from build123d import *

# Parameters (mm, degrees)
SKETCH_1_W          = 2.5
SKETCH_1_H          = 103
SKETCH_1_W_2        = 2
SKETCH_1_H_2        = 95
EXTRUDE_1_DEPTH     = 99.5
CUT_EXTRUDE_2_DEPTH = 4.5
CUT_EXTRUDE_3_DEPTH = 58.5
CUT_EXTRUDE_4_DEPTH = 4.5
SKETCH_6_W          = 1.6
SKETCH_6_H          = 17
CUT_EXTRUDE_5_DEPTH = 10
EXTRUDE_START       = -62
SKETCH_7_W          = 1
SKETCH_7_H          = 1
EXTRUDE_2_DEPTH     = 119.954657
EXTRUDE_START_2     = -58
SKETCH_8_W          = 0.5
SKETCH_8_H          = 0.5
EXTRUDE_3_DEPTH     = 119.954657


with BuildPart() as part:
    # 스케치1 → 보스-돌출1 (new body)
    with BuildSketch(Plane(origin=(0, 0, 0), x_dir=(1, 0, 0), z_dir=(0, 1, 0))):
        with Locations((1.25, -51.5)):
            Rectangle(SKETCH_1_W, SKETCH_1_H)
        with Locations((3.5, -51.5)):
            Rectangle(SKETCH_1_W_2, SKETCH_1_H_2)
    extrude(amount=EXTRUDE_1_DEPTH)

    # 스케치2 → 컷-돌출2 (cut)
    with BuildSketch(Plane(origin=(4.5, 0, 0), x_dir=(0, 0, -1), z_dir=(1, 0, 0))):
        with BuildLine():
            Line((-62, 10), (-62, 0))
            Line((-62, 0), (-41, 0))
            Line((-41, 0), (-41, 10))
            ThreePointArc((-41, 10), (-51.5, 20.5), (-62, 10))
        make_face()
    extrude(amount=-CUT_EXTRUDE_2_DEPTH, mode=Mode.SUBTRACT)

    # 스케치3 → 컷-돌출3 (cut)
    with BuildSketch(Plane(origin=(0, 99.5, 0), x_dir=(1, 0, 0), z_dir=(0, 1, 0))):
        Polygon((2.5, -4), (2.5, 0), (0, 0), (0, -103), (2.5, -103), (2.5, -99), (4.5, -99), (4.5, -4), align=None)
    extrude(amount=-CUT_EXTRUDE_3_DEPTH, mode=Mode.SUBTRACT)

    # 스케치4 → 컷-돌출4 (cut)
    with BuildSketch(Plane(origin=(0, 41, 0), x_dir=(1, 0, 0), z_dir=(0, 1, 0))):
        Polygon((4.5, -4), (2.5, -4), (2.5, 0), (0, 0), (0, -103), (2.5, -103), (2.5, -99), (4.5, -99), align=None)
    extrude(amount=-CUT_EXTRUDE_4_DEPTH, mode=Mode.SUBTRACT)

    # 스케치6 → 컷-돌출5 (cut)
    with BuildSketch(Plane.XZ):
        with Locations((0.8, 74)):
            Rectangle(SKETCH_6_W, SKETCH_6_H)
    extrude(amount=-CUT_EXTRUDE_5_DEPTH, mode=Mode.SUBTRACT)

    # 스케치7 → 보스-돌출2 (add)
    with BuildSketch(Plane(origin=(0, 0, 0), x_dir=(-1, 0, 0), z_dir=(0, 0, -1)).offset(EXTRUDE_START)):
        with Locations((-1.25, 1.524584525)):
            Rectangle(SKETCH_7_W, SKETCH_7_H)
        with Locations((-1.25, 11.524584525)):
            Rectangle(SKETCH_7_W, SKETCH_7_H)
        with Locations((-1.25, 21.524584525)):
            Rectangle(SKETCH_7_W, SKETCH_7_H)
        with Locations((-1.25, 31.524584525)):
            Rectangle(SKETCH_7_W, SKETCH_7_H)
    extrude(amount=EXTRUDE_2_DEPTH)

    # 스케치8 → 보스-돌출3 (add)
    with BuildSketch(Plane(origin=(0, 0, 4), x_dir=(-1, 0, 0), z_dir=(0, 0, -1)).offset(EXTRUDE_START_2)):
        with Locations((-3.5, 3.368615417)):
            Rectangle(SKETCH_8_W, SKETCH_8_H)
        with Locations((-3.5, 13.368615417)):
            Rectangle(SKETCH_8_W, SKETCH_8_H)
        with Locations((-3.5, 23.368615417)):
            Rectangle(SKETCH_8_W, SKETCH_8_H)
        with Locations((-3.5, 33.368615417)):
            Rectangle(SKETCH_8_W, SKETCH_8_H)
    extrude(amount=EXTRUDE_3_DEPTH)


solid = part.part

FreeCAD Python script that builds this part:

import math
import FreeCAD as App
import Part
import Sketcher

V = App.Vector

doc = App.newDocument("Part")
body = doc.addObject("PartDesign::Body", "Body")

# Sketch on XZ plane
sketch1 = body.newObject("Sketcher::SketchObject", "Sketch")
sketch1.AttachmentSupport = (doc.getObject("XZ_Plane"), [""])
sketch1.MapMode = "FlatFace"
sketch1.addGeometry(Part.LineSegment(V(0, 0, 0), V(0, 103, 0)), False)
sketch1.addGeometry(Part.LineSegment(V(0, 103, 0), V(2.5, 103, 0)), False)
sketch1.addGeometry(Part.LineSegment(V(2.5, 103, 0), V(2.5, 99, 0)), False)
sketch1.addGeometry(Part.LineSegment(V(2.5, 99, 0), V(4.5, 99, 0)), False)
sketch1.addGeometry(Part.LineSegment(V(4.5, 99, 0), V(4.5, 4, 0)), False)
sketch1.addGeometry(Part.LineSegment(V(4.5, 4, 0), V(2.5, 4, 0)), False)
sketch1.addGeometry(Part.LineSegment(V(2.5, 4, 0), V(2.5, 0, 0)), False)
sketch1.addGeometry(Part.LineSegment(V(2.5, 0, 0), V(0, 0, 0)), False)
sketch1.addConstraint(Sketcher.Constraint("Coincident", 0, 2, 1, 1))
sketch1.addConstraint(Sketcher.Constraint("Coincident", 1, 2, 2, 1))
sketch1.addConstraint(Sketcher.Constraint("Coincident", 2, 2, 3, 1))
sketch1.addConstraint(Sketcher.Constraint("Coincident", 3, 2, 4, 1))
sketch1.addConstraint(Sketcher.Constraint("Coincident", 4, 2, 5, 1))
sketch1.addConstraint(Sketcher.Constraint("Coincident", 5, 2, 6, 1))
sketch1.addConstraint(Sketcher.Constraint("Coincident", 6, 2, 7, 1))
sketch1.addConstraint(Sketcher.Constraint("Coincident", 7, 2, 0, 1))
sketch1.addConstraint(Sketcher.Constraint("Vertical", 0))
sketch1.addConstraint(Sketcher.Constraint("Horizontal", 1))
sketch1.addConstraint(Sketcher.Constraint("Vertical", 2))
sketch1.addConstraint(Sketcher.Constraint("Horizontal", 3))
sketch1.addConstraint(Sketcher.Constraint("Vertical", 4))
sketch1.addConstraint(Sketcher.Constraint("Horizontal", 5))
sketch1.addConstraint(Sketcher.Constraint("Vertical", 6))
sketch1.addConstraint(Sketcher.Constraint("Horizontal", 7))
sketch1.addConstraint(Sketcher.Constraint("Coincident", 7, 2, -1, 1))
sketch1.addConstraint(Sketcher.Constraint("Vertical", 2, 2, 5, 2))
sketch1.addConstraint(Sketcher.Constraint("Equal", 2, 6))
sketch1.addConstraint(Sketcher.Constraint("DistanceX", 3, 1, 3, 2, 2.0))
sketch1.addConstraint(Sketcher.Constraint("DistanceY", 0, 1, 0, 2, 103.0))
sketch1.addConstraint(Sketcher.Constraint("DistanceY", 2, 2, 2, 1, 4.0))
sketch1.addConstraint(Sketcher.Constraint("DistanceX", 1, 1, 1, 2, 2.5))
pad1 = body.newObject("PartDesign::Pad", "Pad")
pad1.Profile = sketch1
pad1.Length = 99.5
pad1.Reversed = True

# Sketch on YZ plane
sketch2 = body.newObject("Sketcher::SketchObject", "Sketch001")
sketch2.AttachmentSupport = (doc.getObject("YZ_Plane"), [""])
sketch2.MapMode = "FlatFace"
sketch2.AttachmentOffset = App.Placement(V(0, 0, 4.5), App.Rotation())
sketch2.addGeometry(Part.LineSegment(V(10, 62, 0), V(0, 62, 0)), False)
sketch2.addGeometry(Part.LineSegment(V(0, 62, 0), V(0, 41, 0)), False)
sketch2.addGeometry(Part.LineSegment(V(0, 41, 0), V(10, 41, 0)), False)
sketch2.addGeometry(Part.ArcOfCircle(Part.Circle(V(10, 52, 0), V(0, 0, 1), 10), math.radians(-90), math.radians(90)), False)
sketch2.addConstraint(Sketcher.Constraint("Coincident", 0, 2, 1, 1))
sketch2.addConstraint(Sketcher.Constraint("Coincident", 1, 2, 2, 1))
sketch2.addConstraint(Sketcher.Constraint("Tangent", 2, 2, 3, 1))
sketch2.addConstraint(Sketcher.Constraint("Tangent", 3, 2, 0, 1))
sketch2.addConstraint(Sketcher.Constraint("Horizontal", 0))
sketch2.addConstraint(Sketcher.Constraint("Vertical", 1))
sketch2.addConstraint(Sketcher.Constraint("Horizontal", 2))
sketch2.addConstraint(Sketcher.Constraint("PointOnObject", 0, 2, -2))
sketch2.addConstraint(Sketcher.Constraint("Radius", 3, 10.5))
sketch2.addConstraint(Sketcher.Constraint("DistanceX", 0, 2, 0, 1, 10.0))
sketch2.addConstraint(Sketcher.Constraint("DistanceY", -1, 1, 0, 2, 62.0))
pocket1 = body.newObject("PartDesign::Pocket", "Pocket")
pocket1.Profile = sketch2
pocket1.Length = 4.5

# Sketch on XZ plane
sketch3 = body.newObject("Sketcher::SketchObject", "Sketch002")
sketch3.AttachmentSupport = (doc.getObject("XZ_Plane"), [""])
sketch3.MapMode = "FlatFace"
sketch3.AttachmentOffset = App.Placement(V(0, 0, -99.5), App.Rotation())
sketch3.addGeometry(Part.LineSegment(V(2.5, 4, 0), V(2.5, 0, 0)), False)
sketch3.addGeometry(Part.LineSegment(V(2.5, 0, 0), V(0, 0, 0)), False)
sketch3.addGeometry(Part.LineSegment(V(0, 0, 0), V(0, 103, 0)), False)
sketch3.addGeometry(Part.LineSegment(V(0, 103, 0), V(2.5, 103, 0)), False)
sketch3.addGeometry(Part.LineSegment(V(2.5, 103, 0), V(2.5, 99, 0)), False)
sketch3.addGeometry(Part.LineSegment(V(2.5, 99, 0), V(4.5, 99, 0)), False)
sketch3.addGeometry(Part.LineSegment(V(4.5, 99, 0), V(4.5, 4, 0)), False)
sketch3.addGeometry(Part.LineSegment(V(4.5, 4, 0), V(2.5, 4, 0)), False)
sketch3.addConstraint(Sketcher.Constraint("Coincident", 0, 2, 1, 1))
sketch3.addConstraint(Sketcher.Constraint("Coincident", 1, 2, 2, 1))
sketch3.addConstraint(Sketcher.Constraint("Coincident", 2, 2, 3, 1))
sketch3.addConstraint(Sketcher.Constraint("Coincident", 3, 2, 4, 1))
sketch3.addConstraint(Sketcher.Constraint("Coincident", 4, 2, 5, 1))
sketch3.addConstraint(Sketcher.Constraint("Coincident", 5, 2, 6, 1))
sketch3.addConstraint(Sketcher.Constraint("Coincident", 6, 2, 7, 1))
sketch3.addConstraint(Sketcher.Constraint("Coincident", 7, 2, 0, 1))
sketch3.addConstraint(Sketcher.Constraint("Vertical", 0))
sketch3.addConstraint(Sketcher.Constraint("Horizontal", 1))
sketch3.addConstraint(Sketcher.Constraint("Vertical", 2))
sketch3.addConstraint(Sketcher.Constraint("Horizontal", 3))
sketch3.addConstraint(Sketcher.Constraint("Vertical", 4))
sketch3.addConstraint(Sketcher.Constraint("Horizontal", 5))
sketch3.addConstraint(Sketcher.Constraint("Vertical", 6))
sketch3.addConstraint(Sketcher.Constraint("Horizontal", 7))
sketch3.addConstraint(Sketcher.Constraint("Coincident", 1, 2, -1, 1))
sketch3.addConstraint(Sketcher.Constraint("Vertical", 0, 2, 3, 2))
sketch3.addConstraint(Sketcher.Constraint("Equal", 0, 4))
sketch3.addConstraint(Sketcher.Constraint("DistanceX", 5, 1, 5, 2, 2.0))
sketch3.addConstraint(Sketcher.Constraint("DistanceY", 0, 2, 0, 1, 4.0))
sketch3.addConstraint(Sketcher.Constraint("DistanceY", 2, 1, 2, 2, 103.0))
sketch3.addConstraint(Sketcher.Constraint("DistanceX", 1, 2, 1, 1, 2.5))
pocket2 = body.newObject("PartDesign::Pocket", "Pocket001")
pocket2.Profile = sketch3
pocket2.Length = 58.5
pocket2.Reversed = True

# Sketch on XZ plane
sketch4 = body.newObject("Sketcher::SketchObject", "Sketch003")
sketch4.AttachmentSupport = (doc.getObject("XZ_Plane"), [""])
sketch4.MapMode = "FlatFace"
sketch4.AttachmentOffset = App.Placement(V(0, 0, -41), App.Rotation())
sketch4.addGeometry(Part.LineSegment(V(4.5, 4, 0), V(2.5, 4, 0)), False)
sketch4.addGeometry(Part.LineSegment(V(2.5, 4, 0), V(2.5, 0, 0)), False)
sketch4.addGeometry(Part.LineSegment(V(2.5, 0, 0), V(0, 0, 0)), False)
sketch4.addGeometry(Part.LineSegment(V(0, 0, 0), V(0, 103, 0)), False)
sketch4.addGeometry(Part.LineSegment(V(0, 103, 0), V(2.5, 103, 0)), False)
sketch4.addGeometry(Part.LineSegment(V(2.5, 103, 0), V(2.5, 99, 0)), False)
sketch4.addGeometry(Part.LineSegment(V(2.5, 99, 0), V(4.5, 99, 0)), False)
sketch4.addGeometry(Part.LineSegment(V(4.5, 99, 0), V(4.5, 4, 0)), False)
sketch4.addConstraint(Sketcher.Constraint("Coincident", 0, 2, 1, 1))
sketch4.addConstraint(Sketcher.Constraint("Coincident", 1, 2, 2, 1))
sketch4.addConstraint(Sketcher.Constraint("Coincident", 2, 2, 3, 1))
sketch4.addConstraint(Sketcher.Constraint("Coincident", 3, 2, 4, 1))
sketch4.addConstraint(Sketcher.Constraint("Coincident", 4, 2, 5, 1))
sketch4.addConstraint(Sketcher.Constraint("Coincident", 5, 2, 6, 1))
sketch4.addConstraint(Sketcher.Constraint("Coincident", 6, 2, 7, 1))
sketch4.addConstraint(Sketcher.Constraint("Coincident", 7, 2, 0, 1))
sketch4.addConstraint(Sketcher.Constraint("Horizontal", 0))
sketch4.addConstraint(Sketcher.Constraint("Vertical", 1))
sketch4.addConstraint(Sketcher.Constraint("Horizontal", 2))
sketch4.addConstraint(Sketcher.Constraint("Vertical", 3))
sketch4.addConstraint(Sketcher.Constraint("Horizontal", 4))
sketch4.addConstraint(Sketcher.Constraint("Vertical", 5))
sketch4.addConstraint(Sketcher.Constraint("Horizontal", 6))
sketch4.addConstraint(Sketcher.Constraint("Vertical", 7))
sketch4.addConstraint(Sketcher.Constraint("Coincident", 2, 2, -1, 1))
sketch4.addConstraint(Sketcher.Constraint("Vertical", 1, 2, 4, 2))
sketch4.addConstraint(Sketcher.Constraint("Equal", 1, 5))
sketch4.addConstraint(Sketcher.Constraint("DistanceX", 0, 2, 0, 1, 2.0))
sketch4.addConstraint(Sketcher.Constraint("DistanceY", 1, 2, 1, 1, 4.0))
sketch4.addConstraint(Sketcher.Constraint("DistanceY", 3, 1, 3, 2, 103.0))
sketch4.addConstraint(Sketcher.Constraint("DistanceX", 2, 2, 2, 1, 2.5))
pocket3 = body.newObject("PartDesign::Pocket", "Pocket002")
pocket3.Profile = sketch4
pocket3.Length = 4.5
pocket3.Reversed = True

# Sketch on XZ plane
sketch5 = body.newObject("Sketcher::SketchObject", "Sketch004")
sketch5.AttachmentSupport = (doc.getObject("XZ_Plane"), [""])
sketch5.MapMode = "FlatFace"
sketch5.addGeometry(Part.LineSegment(V(0, 82.5, 0), V(0, 65.5, 0)), False)
sketch5.addGeometry(Part.LineSegment(V(0, 65.5, 0), V(1.6, 65.5, 0)), False)
sketch5.addGeometry(Part.LineSegment(V(1.6, 65.5, 0), V(1.6, 82.5, 0)), False)
sketch5.addGeometry(Part.LineSegment(V(1.6, 82.5, 0), V(0, 82.5, 0)), False)
sketch5.addConstraint(Sketcher.Constraint("Coincident", 0, 2, 1, 1))
sketch5.addConstraint(Sketcher.Constraint("Coincident", 1, 2, 2, 1))
sketch5.addConstraint(Sketcher.Constraint("Coincident", 2, 2, 3, 1))
sketch5.addConstraint(Sketcher.Constraint("Coincident", 3, 2, 0, 1))
sketch5.addConstraint(Sketcher.Constraint("Vertical", 0))
sketch5.addConstraint(Sketcher.Constraint("Horizontal", 1))
sketch5.addConstraint(Sketcher.Constraint("Vertical", 2))
sketch5.addConstraint(Sketcher.Constraint("Horizontal", 3))
sketch5.addConstraint(Sketcher.Constraint("PointOnObject", 0, 2, -2))
sketch5.addConstraint(Sketcher.Constraint("DistanceY", 0, 2, 0, 1, 17.0))
sketch5.addConstraint(Sketcher.Constraint("DistanceX", 1, 1, 1, 2, 1.6))
sketch5.addConstraint(Sketcher.Constraint("DistanceY", -1, 1, 0, 2, 65.5))
pocket4 = body.newObject("PartDesign::Pocket", "Pocket003")
pocket4.Profile = sketch5
pocket4.Length = 10

# Sketch on XY plane
sketch6 = body.newObject("Sketcher::SketchObject", "Sketch005")
sketch6.AttachmentSupport = (doc.getObject("XY_Plane"), [""])
sketch6.MapMode = "FlatFace"
sketch6.AttachmentOffset = App.Placement(V(0, 0, 62), App.Rotation())
sketch6.addGeometry(Part.LineSegment(V(1.8, 2, 0), V(1.8, 1, 0)), False)
sketch6.addGeometry(Part.LineSegment(V(1.8, 1, 0), V(0.8, 1, 0)), False)
sketch6.addGeometry(Part.LineSegment(V(0.8, 1, 0), V(0.8, 2, 0)), False)
sketch6.addGeometry(Part.LineSegment(V(0.8, 2, 0), V(1.8, 2, 0)), False)
sketch6.addGeometry(Part.LineSegment(V(1.8, 12, 0), V(1.8, 11, 0)), False)
sketch6.addGeometry(Part.LineSegment(V(1.8, 11, 0), V(0.8, 11, 0)), False)
sketch6.addGeometry(Part.LineSegment(V(0.8, 11, 0), V(0.8, 12, 0)), False)
sketch6.addGeometry(Part.LineSegment(V(0.8, 12, 0), V(1.8, 12, 0)), False)
sketch6.addGeometry(Part.LineSegment(V(1.8, 22, 0), V(1.8, 21, 0)), False)
sketch6.addGeometry(Part.LineSegment(V(1.8, 21, 0), V(0.8, 21, 0)), False)
sketch6.addGeometry(Part.LineSegment(V(0.8, 21, 0), V(0.8, 22, 0)), False)
sketch6.addGeometry(Part.LineSegment(V(0.8, 22, 0), V(1.8, 22, 0)), False)
sketch6.addGeometry(Part.LineSegment(V(1.8, 32, 0), V(1.8, 31, 0)), False)
sketch6.addGeometry(Part.LineSegment(V(1.8, 31, 0), V(0.8, 31, 0)), False)
sketch6.addGeometry(Part.LineSegment(V(0.8, 31, 0), V(0.8, 32, 0)), False)
sketch6.addGeometry(Part.LineSegment(V(0.8, 32, 0), V(1.8, 32, 0)), False)
sketch6.addConstraint(Sketcher.Constraint("Coincident", 0, 2, 1, 1))
sketch6.addConstraint(Sketcher.Constraint("Coincident", 1, 2, 2, 1))
sketch6.addConstraint(Sketcher.Constraint("Coincident", 2, 2, 3, 1))
sketch6.addConstraint(Sketcher.Constraint("Coincident", 3, 2, 0, 1))
sketch6.addConstraint(Sketcher.Constraint("Coincident", 4, 2, 5, 1))
sketch6.addConstraint(Sketcher.Constraint("Coincident", 5, 2, 6, 1))
sketch6.addConstraint(Sketcher.Constraint("Coincident", 6, 2, 7, 1))
sketch6.addConstraint(Sketcher.Constraint("Coincident", 7, 2, 4, 1))
sketch6.addConstraint(Sketcher.Constraint("Coincident", 8, 2, 9, 1))
sketch6.addConstraint(Sketcher.Constraint("Coincident", 9, 2, 10, 1))
sketch6.addConstraint(Sketcher.Constraint("Coincident", 10, 2, 11, 1))
sketch6.addConstraint(Sketcher.Constraint("Coincident", 11, 2, 8, 1))
sketch6.addConstraint(Sketcher.Constraint("Coincident", 12, 2, 13, 1))
sketch6.addConstraint(Sketcher.Constraint("Coincident", 13, 2, 14, 1))
sketch6.addConstraint(Sketcher.Constraint("Coincident", 14, 2, 15, 1))
sketch6.addConstraint(Sketcher.Constraint("Coincident", 15, 2, 12, 1))
sketch6.addConstraint(Sketcher.Constraint("Vertical", 0))
sketch6.addConstraint(Sketcher.Constraint("Horizontal", 1))
sketch6.addConstraint(Sketcher.Constraint("Vertical", 2))
sketch6.addConstraint(Sketcher.Constraint("Horizontal", 3))
sketch6.addConstraint(Sketcher.Constraint("Vertical", 4))
sketch6.addConstraint(Sketcher.Constraint("Horizontal", 5))
sketch6.addConstraint(Sketcher.Constraint("Vertical", 6))
sketch6.addConstraint(Sketcher.Constraint("Horizontal", 7))
sketch6.addConstraint(Sketcher.Constraint("Vertical", 8))
sketch6.addConstraint(Sketcher.Constraint("Horizontal", 9))
sketch6.addConstraint(Sketcher.Constraint("Vertical", 10))
sketch6.addConstraint(Sketcher.Constraint("Horizontal", 11))
sketch6.addConstraint(Sketcher.Constraint("Vertical", 12))
sketch6.addConstraint(Sketcher.Constraint("Horizontal", 13))
sketch6.addConstraint(Sketcher.Constraint("Vertical", 14))
sketch6.addConstraint(Sketcher.Constraint("Horizontal", 15))
sketch6.addConstraint(Sketcher.Constraint("Vertical", 3, 2, 4, 2))
sketch6.addConstraint(Sketcher.Constraint("Vertical", 2, 2, 5, 2))
sketch6.addConstraint(Sketcher.Constraint("Vertical", 7, 2, 8, 2))
sketch6.addConstraint(Sketcher.Constraint("Vertical", 6, 2, 9, 2))
sketch6.addConstraint(Sketcher.Constraint("Vertical", 11, 2, 12, 2))
sketch6.addConstraint(Sketcher.Constraint("Vertical", 10, 2, 13, 2))
sketch6.addConstraint(Sketcher.Constraint("Equal", 15, 0))
sketch6.addConstraint(Sketcher.Constraint("Equal", 2, 4))
sketch6.addConstraint(Sketcher.Constraint("Equal", 6, 8))
sketch6.addConstraint(Sketcher.Constraint("Equal", 10, 12))
sketch6.addConstraint(Sketcher.Constraint("DistanceX", 1, 2, 1, 1, 1.0))
sketch6.addConstraint(Sketcher.Constraint("DistanceY", 3, 2, 4, 2, 9.0))
sketch6.addConstraint(Sketcher.Constraint("DistanceY", 7, 2, 8, 2, 9.0))
sketch6.addConstraint(Sketcher.Constraint("DistanceY", 11, 2, 12, 2, 9.0))
sketch6.addConstraint(Sketcher.Constraint("DistanceX", -1, 1, 0, 2, 1.75))
sketch6.addConstraint(Sketcher.Constraint("DistanceY", -1, 1, 0, 2, 1.024585))
pad2 = body.newObject("PartDesign::Pad", "Pad001")
pad2.Profile = sketch6
pad2.Length = 119.954657
pad2.Reversed = True

# Sketch on XY plane
sketch7 = body.newObject("Sketcher::SketchObject", "Sketch006")
sketch7.AttachmentSupport = (doc.getObject("XY_Plane"), [""])
sketch7.MapMode = "FlatFace"
sketch7.AttachmentOffset = App.Placement(V(0, 0, 62), App.Rotation())
sketch7.addGeometry(Part.LineSegment(V(3.8, 3.6, 0), V(3.8, 3.1, 0)), False)
sketch7.addGeometry(Part.LineSegment(V(3.8, 3.1, 0), V(3.2, 3.1, 0)), False)
sketch7.addGeometry(Part.LineSegment(V(3.2, 3.1, 0), V(3.2, 3.6, 0)), False)
sketch7.addGeometry(Part.LineSegment(V(3.2, 3.6, 0), V(3.8, 3.6, 0)), False)
sketch7.addGeometry(Part.LineSegment(V(3.8, 13.6, 0), V(3.8, 13.1, 0)), False)
sketch7.addGeometry(Part.LineSegment(V(3.8, 13.1, 0), V(3.2, 13.1, 0)), False)
sketch7.addGeometry(Part.LineSegment(V(3.2, 13.1, 0), V(3.2, 13.6, 0)), False)
sketch7.addGeometry(Part.LineSegment(V(3.2, 13.6, 0), V(3.8, 13.6, 0)), False)
sketch7.addGeometry(Part.LineSegment(V(3.8, 23.6, 0), V(3.8, 23.1, 0)), False)
sketch7.addGeometry(Part.LineSegment(V(3.8, 23.1, 0), V(3.2, 23.1, 0)), False)
sketch7.addGeometry(Part.LineSegment(V(3.2, 23.1, 0), V(3.2, 23.6, 0)), False)
sketch7.addGeometry(Part.LineSegment(V(3.2, 23.6, 0), V(3.8, 23.6, 0)), False)
sketch7.addGeometry(Part.LineSegment(V(3.8, 33.6, 0), V(3.8, 33.1, 0)), False)
sketch7.addGeometry(Part.LineSegment(V(3.8, 33.1, 0), V(3.2, 33.1, 0)), False)
sketch7.addGeometry(Part.LineSegment(V(3.2, 33.1, 0), V(3.2, 33.6, 0)), False)
sketch7.addGeometry(Part.LineSegment(V(3.2, 33.6, 0), V(3.8, 33.6, 0)), False)
sketch7.addConstraint(Sketcher.Constraint("Coincident", 0, 2, 1, 1))
sketch7.addConstraint(Sketcher.Constraint("Coincident", 1, 2, 2, 1))
sketch7.addConstraint(Sketcher.Constraint("Coincident", 2, 2, 3, 1))
sketch7.addConstraint(Sketcher.Constraint("Coincident", 3, 2, 0, 1))
sketch7.addConstraint(Sketcher.Constraint("Coincident", 4, 2, 5, 1))
sketch7.addConstraint(Sketcher.Constraint("Coincident", 5, 2, 6, 1))
sketch7.addConstraint(Sketcher.Constraint("Coincident", 6, 2, 7, 1))
sketch7.addConstraint(Sketcher.Constraint("Coincident", 7, 2, 4, 1))
sketch7.addConstraint(Sketcher.Constraint("Coincident", 8, 2, 9, 1))
sketch7.addConstraint(Sketcher.Constraint("Coincident", 9, 2, 10, 1))
sketch7.addConstraint(Sketcher.Constraint("Coincident", 10, 2, 11, 1))
sketch7.addConstraint(Sketcher.Constraint("Coincident", 11, 2, 8, 1))
sketch7.addConstraint(Sketcher.Constraint("Coincident", 12, 2, 13, 1))
sketch7.addConstraint(Sketcher.Constraint("Coincident", 13, 2, 14, 1))
sketch7.addConstraint(Sketcher.Constraint("Coincident", 14, 2, 15, 1))
sketch7.addConstraint(Sketcher.Constraint("Coincident", 15, 2, 12, 1))
sketch7.addConstraint(Sketcher.Constraint("Vertical", 0))
sketch7.addConstraint(Sketcher.Constraint("Horizontal", 1))
sketch7.addConstraint(Sketcher.Constraint("Vertical", 2))
sketch7.addConstraint(Sketcher.Constraint("Horizontal", 3))
sketch7.addConstraint(Sketcher.Constraint("Vertical", 4))
sketch7.addConstraint(Sketcher.Constraint("Horizontal", 5))
sketch7.addConstraint(Sketcher.Constraint("Vertical", 6))
sketch7.addConstraint(Sketcher.Constraint("Horizontal", 7))
sketch7.addConstraint(Sketcher.Constraint("Vertical", 8))
sketch7.addConstraint(Sketcher.Constraint("Horizontal", 9))
sketch7.addConstraint(Sketcher.Constraint("Vertical", 10))
sketch7.addConstraint(Sketcher.Constraint("Horizontal", 11))
sketch7.addConstraint(Sketcher.Constraint("Vertical", 12))
sketch7.addConstraint(Sketcher.Constraint("Horizontal", 13))
sketch7.addConstraint(Sketcher.Constraint("Vertical", 14))
sketch7.addConstraint(Sketcher.Constraint("Horizontal", 15))
sketch7.addConstraint(Sketcher.Constraint("Vertical", 3, 2, 4, 2))
sketch7.addConstraint(Sketcher.Constraint("Vertical", 2, 2, 5, 2))
sketch7.addConstraint(Sketcher.Constraint("Vertical", 7, 2, 8, 2))
sketch7.addConstraint(Sketcher.Constraint("Vertical", 6, 2, 9, 2))
sketch7.addConstraint(Sketcher.Constraint("Vertical", 11, 2, 12, 2))
sketch7.addConstraint(Sketcher.Constraint("Vertical", 10, 2, 13, 2))
sketch7.addConstraint(Sketcher.Constraint("Equal", 15, 0))
sketch7.addConstraint(Sketcher.Constraint("Equal", 2, 4))
sketch7.addConstraint(Sketcher.Constraint("Equal", 6, 8))
sketch7.addConstraint(Sketcher.Constraint("Equal", 10, 12))
sketch7.addConstraint(Sketcher.Constraint("DistanceX", 1, 2, 1, 1, 0.5))
sketch7.addConstraint(Sketcher.Constraint("DistanceY", 0, 2, 4, 2, 10.0))
sketch7.addConstraint(Sketcher.Constraint("DistanceY", 4, 2, 8, 2, 10.0))
sketch7.addConstraint(Sketcher.Constraint("DistanceY", 8, 2, 12, 2, 10.0))
sketch7.addConstraint(Sketcher.Constraint("DistanceX", -1, 1, 0, 2, 3.75))
sketch7.addConstraint(Sketcher.Constraint("DistanceY", -1, 1, 0, 2, 3.118615))
pad3 = body.newObject("PartDesign::Pad", "Pad002")
pad3.Profile = sketch7
pad3.Length = 119.954657
pad3.Reversed = True

doc.recompute()
